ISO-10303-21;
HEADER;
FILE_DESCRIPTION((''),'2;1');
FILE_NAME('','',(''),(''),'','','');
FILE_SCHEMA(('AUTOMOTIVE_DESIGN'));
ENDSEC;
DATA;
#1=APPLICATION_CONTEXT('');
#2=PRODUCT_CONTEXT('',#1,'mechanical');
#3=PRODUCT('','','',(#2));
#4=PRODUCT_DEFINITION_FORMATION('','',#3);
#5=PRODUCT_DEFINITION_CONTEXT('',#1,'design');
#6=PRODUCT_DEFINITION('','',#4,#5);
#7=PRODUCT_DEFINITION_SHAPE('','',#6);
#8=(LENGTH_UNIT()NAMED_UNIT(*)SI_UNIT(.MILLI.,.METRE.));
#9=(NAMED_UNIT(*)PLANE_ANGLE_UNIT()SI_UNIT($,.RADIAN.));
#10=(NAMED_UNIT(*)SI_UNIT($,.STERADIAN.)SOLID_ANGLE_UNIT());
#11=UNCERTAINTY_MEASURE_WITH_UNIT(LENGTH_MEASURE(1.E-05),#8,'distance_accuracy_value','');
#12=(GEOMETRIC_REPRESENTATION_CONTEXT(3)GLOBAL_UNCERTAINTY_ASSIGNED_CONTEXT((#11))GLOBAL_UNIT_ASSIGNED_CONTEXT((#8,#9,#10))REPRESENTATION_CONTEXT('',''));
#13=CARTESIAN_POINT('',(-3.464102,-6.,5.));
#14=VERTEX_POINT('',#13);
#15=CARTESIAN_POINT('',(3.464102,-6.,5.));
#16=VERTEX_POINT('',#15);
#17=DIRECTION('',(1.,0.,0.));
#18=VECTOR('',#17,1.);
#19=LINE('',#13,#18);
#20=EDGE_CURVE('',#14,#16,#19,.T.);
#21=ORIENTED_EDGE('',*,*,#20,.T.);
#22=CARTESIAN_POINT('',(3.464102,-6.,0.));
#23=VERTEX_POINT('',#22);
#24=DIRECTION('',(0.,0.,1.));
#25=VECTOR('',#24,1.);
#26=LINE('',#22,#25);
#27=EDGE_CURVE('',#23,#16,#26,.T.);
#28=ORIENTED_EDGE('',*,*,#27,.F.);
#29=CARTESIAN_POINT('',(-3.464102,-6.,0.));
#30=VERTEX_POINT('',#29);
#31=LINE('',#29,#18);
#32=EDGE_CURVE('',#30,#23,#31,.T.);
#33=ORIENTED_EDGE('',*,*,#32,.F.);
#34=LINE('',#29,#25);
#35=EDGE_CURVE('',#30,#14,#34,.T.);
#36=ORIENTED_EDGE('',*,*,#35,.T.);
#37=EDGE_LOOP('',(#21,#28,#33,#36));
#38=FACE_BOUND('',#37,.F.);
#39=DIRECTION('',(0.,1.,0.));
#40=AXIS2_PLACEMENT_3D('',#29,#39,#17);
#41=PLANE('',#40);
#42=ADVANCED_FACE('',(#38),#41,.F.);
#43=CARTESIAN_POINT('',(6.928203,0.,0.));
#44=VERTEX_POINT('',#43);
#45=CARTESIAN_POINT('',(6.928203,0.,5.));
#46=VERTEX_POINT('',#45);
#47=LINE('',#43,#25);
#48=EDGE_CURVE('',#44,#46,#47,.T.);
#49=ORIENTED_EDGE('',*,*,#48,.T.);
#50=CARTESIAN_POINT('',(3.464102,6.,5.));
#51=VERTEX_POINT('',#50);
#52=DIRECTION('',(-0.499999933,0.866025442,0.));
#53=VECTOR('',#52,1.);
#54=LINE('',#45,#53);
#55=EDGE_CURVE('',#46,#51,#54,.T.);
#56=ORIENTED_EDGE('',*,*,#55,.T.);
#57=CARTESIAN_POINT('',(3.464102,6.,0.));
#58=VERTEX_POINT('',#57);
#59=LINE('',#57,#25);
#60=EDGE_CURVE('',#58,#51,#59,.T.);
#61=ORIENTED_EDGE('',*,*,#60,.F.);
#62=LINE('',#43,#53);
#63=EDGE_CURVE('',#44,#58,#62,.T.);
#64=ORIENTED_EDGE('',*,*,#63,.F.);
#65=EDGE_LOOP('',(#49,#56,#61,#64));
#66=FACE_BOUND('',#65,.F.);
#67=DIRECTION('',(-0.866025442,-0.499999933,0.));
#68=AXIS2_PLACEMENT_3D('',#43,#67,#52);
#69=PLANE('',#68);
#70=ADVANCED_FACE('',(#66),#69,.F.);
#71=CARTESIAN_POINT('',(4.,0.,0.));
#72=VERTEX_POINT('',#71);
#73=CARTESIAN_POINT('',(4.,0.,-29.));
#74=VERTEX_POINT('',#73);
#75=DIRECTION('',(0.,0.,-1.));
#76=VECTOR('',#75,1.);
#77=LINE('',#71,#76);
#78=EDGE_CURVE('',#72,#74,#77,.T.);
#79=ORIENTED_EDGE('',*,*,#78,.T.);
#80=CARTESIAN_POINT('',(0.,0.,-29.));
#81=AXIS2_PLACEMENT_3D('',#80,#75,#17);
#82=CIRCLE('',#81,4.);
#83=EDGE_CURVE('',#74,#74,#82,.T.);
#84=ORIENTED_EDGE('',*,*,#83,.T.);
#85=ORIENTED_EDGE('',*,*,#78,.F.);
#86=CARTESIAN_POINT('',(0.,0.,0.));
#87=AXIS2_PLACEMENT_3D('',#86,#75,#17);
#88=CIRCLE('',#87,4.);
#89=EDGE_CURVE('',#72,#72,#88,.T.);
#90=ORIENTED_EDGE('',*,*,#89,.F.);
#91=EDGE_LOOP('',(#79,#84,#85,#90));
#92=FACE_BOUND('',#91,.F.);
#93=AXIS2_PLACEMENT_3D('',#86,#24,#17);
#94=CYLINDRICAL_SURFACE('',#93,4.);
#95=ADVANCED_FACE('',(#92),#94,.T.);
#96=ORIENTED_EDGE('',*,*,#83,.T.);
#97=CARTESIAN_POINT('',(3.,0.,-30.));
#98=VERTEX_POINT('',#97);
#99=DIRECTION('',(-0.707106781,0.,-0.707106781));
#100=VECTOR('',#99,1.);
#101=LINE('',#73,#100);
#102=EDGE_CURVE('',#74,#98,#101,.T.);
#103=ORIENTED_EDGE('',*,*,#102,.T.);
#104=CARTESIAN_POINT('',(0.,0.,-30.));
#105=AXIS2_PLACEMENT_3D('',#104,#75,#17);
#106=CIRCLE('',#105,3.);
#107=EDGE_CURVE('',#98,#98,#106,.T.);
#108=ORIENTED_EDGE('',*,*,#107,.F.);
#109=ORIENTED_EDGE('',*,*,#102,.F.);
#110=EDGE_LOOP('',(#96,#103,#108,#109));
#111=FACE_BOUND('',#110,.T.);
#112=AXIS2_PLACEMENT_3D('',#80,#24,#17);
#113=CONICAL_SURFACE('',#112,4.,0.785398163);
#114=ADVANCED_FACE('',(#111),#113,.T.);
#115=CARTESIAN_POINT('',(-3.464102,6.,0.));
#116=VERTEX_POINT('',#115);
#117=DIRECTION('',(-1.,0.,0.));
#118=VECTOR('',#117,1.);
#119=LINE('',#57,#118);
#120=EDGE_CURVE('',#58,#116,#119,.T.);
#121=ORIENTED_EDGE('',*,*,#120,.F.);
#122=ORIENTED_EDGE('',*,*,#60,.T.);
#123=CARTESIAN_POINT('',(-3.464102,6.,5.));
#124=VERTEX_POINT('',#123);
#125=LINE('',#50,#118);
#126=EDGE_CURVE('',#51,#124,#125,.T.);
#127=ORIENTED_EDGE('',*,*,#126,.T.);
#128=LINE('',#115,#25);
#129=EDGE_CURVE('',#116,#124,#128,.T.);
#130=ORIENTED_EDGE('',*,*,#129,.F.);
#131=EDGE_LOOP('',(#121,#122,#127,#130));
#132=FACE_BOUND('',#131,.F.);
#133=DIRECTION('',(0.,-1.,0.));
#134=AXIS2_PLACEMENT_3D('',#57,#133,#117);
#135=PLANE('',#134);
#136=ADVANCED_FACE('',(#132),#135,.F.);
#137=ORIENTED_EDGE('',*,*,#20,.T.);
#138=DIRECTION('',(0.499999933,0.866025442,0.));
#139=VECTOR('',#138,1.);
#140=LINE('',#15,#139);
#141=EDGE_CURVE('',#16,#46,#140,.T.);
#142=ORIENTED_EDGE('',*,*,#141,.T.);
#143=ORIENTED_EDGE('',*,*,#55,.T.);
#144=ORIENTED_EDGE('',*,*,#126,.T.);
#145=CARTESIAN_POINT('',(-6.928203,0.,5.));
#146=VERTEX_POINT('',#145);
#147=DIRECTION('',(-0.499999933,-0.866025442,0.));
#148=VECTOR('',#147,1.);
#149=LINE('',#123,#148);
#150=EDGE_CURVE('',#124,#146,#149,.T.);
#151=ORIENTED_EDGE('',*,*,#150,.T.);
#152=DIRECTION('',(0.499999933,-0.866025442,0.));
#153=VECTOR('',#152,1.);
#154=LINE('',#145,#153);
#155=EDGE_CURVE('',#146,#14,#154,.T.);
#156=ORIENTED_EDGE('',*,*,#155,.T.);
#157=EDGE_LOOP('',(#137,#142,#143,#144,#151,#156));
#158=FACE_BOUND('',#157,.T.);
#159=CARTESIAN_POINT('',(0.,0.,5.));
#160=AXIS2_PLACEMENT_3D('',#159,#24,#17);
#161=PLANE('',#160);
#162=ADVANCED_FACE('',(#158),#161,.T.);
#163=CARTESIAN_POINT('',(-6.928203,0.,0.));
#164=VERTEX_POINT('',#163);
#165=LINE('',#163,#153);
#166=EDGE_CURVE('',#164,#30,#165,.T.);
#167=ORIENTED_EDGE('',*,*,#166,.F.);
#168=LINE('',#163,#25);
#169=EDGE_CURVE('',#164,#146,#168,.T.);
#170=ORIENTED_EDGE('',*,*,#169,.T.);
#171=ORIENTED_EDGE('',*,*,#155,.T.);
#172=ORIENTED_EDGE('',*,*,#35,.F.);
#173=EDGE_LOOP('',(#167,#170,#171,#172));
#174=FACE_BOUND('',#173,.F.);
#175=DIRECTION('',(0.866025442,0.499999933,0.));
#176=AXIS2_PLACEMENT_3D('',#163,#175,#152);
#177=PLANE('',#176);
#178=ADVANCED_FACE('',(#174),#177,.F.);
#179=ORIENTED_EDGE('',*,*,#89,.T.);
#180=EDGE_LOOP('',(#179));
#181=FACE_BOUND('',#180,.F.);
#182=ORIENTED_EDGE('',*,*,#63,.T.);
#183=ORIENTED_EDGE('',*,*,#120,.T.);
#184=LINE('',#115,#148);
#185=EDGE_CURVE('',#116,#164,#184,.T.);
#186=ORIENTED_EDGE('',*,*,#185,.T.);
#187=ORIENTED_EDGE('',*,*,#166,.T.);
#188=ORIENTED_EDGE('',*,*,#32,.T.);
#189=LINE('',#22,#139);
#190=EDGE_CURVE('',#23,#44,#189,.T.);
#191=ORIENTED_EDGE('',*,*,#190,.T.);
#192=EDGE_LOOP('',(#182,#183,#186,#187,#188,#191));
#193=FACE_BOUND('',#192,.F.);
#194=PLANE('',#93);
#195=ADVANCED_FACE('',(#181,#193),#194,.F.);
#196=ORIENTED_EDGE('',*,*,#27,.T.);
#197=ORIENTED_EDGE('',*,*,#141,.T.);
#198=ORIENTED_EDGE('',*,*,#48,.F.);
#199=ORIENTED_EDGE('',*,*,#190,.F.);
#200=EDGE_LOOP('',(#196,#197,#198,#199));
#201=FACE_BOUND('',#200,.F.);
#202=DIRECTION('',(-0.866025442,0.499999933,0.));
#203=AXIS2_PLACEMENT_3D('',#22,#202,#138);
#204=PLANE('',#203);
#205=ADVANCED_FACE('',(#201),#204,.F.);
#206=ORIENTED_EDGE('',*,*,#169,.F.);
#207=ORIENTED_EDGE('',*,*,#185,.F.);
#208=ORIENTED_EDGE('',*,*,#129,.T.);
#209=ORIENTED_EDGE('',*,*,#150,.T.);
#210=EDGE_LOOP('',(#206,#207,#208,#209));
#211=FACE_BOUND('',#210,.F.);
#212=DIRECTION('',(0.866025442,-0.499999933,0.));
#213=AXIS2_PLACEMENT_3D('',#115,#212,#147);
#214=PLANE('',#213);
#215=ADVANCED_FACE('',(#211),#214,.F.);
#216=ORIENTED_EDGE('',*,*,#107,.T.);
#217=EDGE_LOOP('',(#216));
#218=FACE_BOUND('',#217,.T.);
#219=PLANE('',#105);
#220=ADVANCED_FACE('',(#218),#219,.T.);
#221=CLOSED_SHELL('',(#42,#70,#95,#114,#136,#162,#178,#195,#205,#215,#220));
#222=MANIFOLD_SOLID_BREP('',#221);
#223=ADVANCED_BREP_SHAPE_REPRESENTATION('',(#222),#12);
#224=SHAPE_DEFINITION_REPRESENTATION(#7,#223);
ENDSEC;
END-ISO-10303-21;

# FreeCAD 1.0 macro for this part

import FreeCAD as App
import Part
import Sketcher
from FreeCAD import Vector
Q = App.Units.Quantity


def edges_at(feature, points):
    """Names of the edges that pass closest to the given points."""
    edges = feature.Shape.Edges
    near = lambda p: min(range(len(edges)), key=lambda i: edges[i].distToShape(Part.Vertex(*p))[0])
    return sorted({f"Edge{near(p) + 1}" for p in points})

doc = App.newDocument("Part")
params = doc.addObject("Spreadsheet::Sheet", "Params")
for row, (alias, value) in enumerate([
    ("pad1_length", "5 mm"),
    ("sketch2_diameter", "8 mm"),
    ("pad2_length", "30 mm"),
    ("chamfer_size", "1 mm"),
], start=1):
    params.set(f"A{row}", alias)
    params.set(f"B{row}", "=" + value)
    params.setAlias(f"B{row}", alias)

body = doc.addObject("PartDesign::Body", "Body")

sketch1 = body.newObject("Sketcher::SketchObject", "Sketch")
sketch1.AttachmentSupport = (doc.getObject("XY_Plane"), [""])
sketch1.MapMode = "FlatFace"
sketch1.addGeometry(Part.LineSegment(Vector(3, 6, 0), Vector(-3, 6, 0)), False)
sketch1.addGeometry(Part.LineSegment(Vector(-3, 6, 0), Vector(-7, 0, 0)), False)
sketch1.addGeometry(Part.LineSegment(Vector(-7, 0, 0), Vector(-3, -6, 0)), False)
sketch1.addGeometry(Part.LineSegment(Vector(-3, -6, 0), Vector(3, -6, 0)), False)
sketch1.addGeometry(Part.LineSegment(Vector(3, -6, 0), Vector(7, 0, 0)), False)
sketch1.addGeometry(Part.LineSegment(Vector(7, 0, 0), Vector(3, 6, 0)), False)
sketch1.addConstraint(Sketcher.Constraint("Coincident", 0, 2, 1, 1))
sketch1.addConstraint(Sketcher.Constraint("Coincident", 1, 2, 2, 1))
sketch1.addConstraint(Sketcher.Constraint("Coincident", 2, 2, 3, 1))
sketch1.addConstraint(Sketcher.Constraint("Coincident", 3, 2, 4, 1))
sketch1.addConstraint(Sketcher.Constraint("Coincident", 4, 2, 5, 1))
sketch1.addConstraint(Sketcher.Constraint("Coincident", 5, 2, 0, 1))
sketch1.addConstraint(Sketcher.Constraint("Horizontal", 0))
sketch1.addConstraint(Sketcher.Constraint("Horizontal", 3))
sketch1.addConstraint(Sketcher.Constraint("Symmetric", 0, 2, 3, 2, -1, 1))
sketch1.addConstraint(Sketcher.Constraint("Symmetric", 1, 2, 4, 2, -1, 1))
sketch1.addConstraint(Sketcher.Constraint("PointOnObject", 1, 2, -1))
sketch1.addConstraint(Sketcher.Constraint("Parallel", 2, 5))
sketch1.addConstraint(Sketcher.Constraint("Vertical", 0, 2, 2, 2))
sketch1.addConstraint(Sketcher.Constraint("Angle", 1, Q("-119.999996 deg")))
sketch1.addConstraint(Sketcher.Constraint("DistanceY", -1, 1, 0, 2, 6.0))
sketch1.addConstraint(Sketcher.Constraint("DistanceX", 0, 2, -1, 1, 3.464102))
pad1 = body.newObject("PartDesign::Pad", "Pad")
pad1.Profile = sketch1
pad1.setExpression("Length", "Params.pad1_length")

sketch2 = body.newObject("Sketcher::SketchObject", "Sketch001")
sketch2.AttachmentSupport = (doc.getObject("XY_Plane"), [""])
sketch2.MapMode = "FlatFace"
sketch2.addGeometry(Part.Circle(Vector(0, 0, 0), Vector(0, 0, 1), 4), False)
sketch2.addConstraint(Sketcher.Constraint("Coincident", 0, 3, -1, 1))
sketch2.addConstraint(Sketcher.Constraint("Diameter", 0, 8.0))
sketch2.setExpression("Constraints[1]", "Params.sketch2_diameter")
pad2 = body.newObject("PartDesign::Pad", "Pad001")
pad2.Profile = sketch2
pad2.setExpression("Length", "Params.pad2_length")
pad2.Reversed = True
doc.recompute()

chamfer = body.newObject("PartDesign::Chamfer", "Chamfer")
chamfer.Base = (pad2, edges_at(pad2, [(-4, 0, -30)]))
chamfer.setExpression("Size", "Params.chamfer_size")

doc.recompute()
